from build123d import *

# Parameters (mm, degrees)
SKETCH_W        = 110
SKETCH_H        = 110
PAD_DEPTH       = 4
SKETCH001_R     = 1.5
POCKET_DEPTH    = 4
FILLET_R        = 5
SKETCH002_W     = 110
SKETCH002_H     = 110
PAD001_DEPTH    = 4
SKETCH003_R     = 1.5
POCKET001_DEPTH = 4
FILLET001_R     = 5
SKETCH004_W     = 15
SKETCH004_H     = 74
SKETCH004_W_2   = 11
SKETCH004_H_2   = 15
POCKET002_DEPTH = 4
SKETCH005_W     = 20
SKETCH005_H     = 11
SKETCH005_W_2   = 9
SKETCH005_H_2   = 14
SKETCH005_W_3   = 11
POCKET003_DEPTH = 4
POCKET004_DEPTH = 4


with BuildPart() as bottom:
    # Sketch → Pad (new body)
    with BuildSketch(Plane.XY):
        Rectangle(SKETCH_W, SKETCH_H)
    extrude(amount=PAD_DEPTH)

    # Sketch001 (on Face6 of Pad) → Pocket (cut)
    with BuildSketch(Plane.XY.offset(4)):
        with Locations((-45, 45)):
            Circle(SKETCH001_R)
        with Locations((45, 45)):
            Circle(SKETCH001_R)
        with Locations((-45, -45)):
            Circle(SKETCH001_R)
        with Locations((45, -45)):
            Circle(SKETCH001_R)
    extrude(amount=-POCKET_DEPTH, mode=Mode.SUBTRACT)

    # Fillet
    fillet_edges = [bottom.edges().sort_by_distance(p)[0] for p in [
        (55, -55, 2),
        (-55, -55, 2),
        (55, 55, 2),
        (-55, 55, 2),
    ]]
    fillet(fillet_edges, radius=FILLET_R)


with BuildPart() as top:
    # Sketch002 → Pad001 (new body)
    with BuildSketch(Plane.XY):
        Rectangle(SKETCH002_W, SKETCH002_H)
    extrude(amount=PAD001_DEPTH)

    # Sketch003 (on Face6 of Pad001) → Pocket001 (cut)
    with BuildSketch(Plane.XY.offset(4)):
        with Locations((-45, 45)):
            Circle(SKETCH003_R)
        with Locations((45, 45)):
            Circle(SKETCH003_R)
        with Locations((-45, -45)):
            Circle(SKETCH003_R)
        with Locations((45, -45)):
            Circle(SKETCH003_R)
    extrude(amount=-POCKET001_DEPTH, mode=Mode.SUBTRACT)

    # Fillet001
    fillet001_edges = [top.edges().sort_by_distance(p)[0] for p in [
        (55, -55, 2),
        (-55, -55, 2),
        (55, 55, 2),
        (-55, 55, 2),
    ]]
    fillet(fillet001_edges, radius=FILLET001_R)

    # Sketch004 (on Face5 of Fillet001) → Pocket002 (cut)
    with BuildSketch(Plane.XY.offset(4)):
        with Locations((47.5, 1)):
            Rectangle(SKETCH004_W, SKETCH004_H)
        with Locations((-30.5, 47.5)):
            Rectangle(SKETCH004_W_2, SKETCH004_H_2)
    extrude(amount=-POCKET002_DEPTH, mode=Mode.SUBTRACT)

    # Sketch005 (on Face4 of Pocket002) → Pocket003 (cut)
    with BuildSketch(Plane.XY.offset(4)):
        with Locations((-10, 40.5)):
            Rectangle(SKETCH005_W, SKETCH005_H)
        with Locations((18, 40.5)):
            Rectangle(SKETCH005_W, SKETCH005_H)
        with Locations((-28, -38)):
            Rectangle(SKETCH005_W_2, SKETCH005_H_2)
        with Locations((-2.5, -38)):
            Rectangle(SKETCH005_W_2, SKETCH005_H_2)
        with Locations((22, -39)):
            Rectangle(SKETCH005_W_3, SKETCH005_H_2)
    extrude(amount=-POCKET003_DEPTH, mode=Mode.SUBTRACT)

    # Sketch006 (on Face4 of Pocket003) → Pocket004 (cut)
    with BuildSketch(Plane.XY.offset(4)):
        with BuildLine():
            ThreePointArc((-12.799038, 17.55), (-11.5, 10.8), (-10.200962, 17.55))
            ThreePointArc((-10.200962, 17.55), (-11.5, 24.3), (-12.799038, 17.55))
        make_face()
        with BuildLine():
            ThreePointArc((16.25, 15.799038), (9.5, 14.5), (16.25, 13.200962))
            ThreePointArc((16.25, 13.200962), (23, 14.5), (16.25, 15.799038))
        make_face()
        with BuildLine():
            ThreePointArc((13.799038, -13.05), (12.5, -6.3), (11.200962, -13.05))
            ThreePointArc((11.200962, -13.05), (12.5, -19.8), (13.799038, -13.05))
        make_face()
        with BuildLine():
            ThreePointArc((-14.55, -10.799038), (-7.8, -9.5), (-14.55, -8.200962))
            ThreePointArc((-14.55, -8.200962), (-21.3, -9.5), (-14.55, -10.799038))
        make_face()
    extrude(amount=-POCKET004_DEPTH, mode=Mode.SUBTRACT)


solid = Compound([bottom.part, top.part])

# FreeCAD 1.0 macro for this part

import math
import FreeCAD as App
import Part
import Sketcher
Q = App.Units.Quantity


def edges_at(feature, points):
    """Names of the edges that pass closest to the given points."""
    edges = feature.Shape.Edges
    near = lambda p: min(range(len(edges)), key=lambda i: edges[i].distToShape(Part.Vertex(*p))[0])
    return sorted({f"Edge{near(p) + 1}" for p in points})

doc = App.newDocument("Part")
body = doc.addObject("PartDesign::Body", "Body")

# Sketch on XY plane
sketch1 = body.newObject("Sketcher::SketchObject", "Sketch")
sketch1.AttachmentSupport = (doc.getObject("XY_Plane"), [""])
sketch1.MapMode = "FlatFace"
sketch1.addGeometry(Part.LineSegment(App.Vector(-55, 55, 0), App.Vector(-55, -55, 0)), False)
sketch1.addGeometry(Part.LineSegment(App.Vector(-55, -55, 0), App.Vector(55, -55, 0)), False)
sketch1.addGeometry(Part.LineSegment(App.Vector(55, -55, 0), App.Vector(55, 55, 0)), False)
sketch1.addGeometry(Part.LineSegment(App.Vector(55, 55, 0), App.Vector(-55, 55, 0)), False)
sketch1.addConstraint(Sketcher.Constraint("Coincident", 0, 2, 1, 1))
sketch1.addConstraint(Sketcher.Constraint("Coincident", 1, 2, 2, 1))
sketch1.addConstraint(Sketcher.Constraint("Coincident", 2, 2, 3, 1))
sketch1.addConstraint(Sketcher.Constraint("Coincident", 3, 2, 0, 1))
sketch1.addConstraint(Sketcher.Constraint("Vertical", 0))
sketch1.addConstraint(Sketcher.Constraint("Horizontal", 1))
sketch1.addConstraint(Sketcher.Constraint("Vertical", 2))
sketch1.addConstraint(Sketcher.Constraint("Horizontal", 3))
sketch1.addConstraint(Sketcher.Constraint("Symmetric", 0, 2, 2, 2, -1, 1))
sketch1.addConstraint(Sketcher.Constraint("Equal", 3, 0))
sketch1.addConstraint(Sketcher.Constraint("DistanceX", 1, 1, 1, 2, Q("110 mm")))
pad1 = body.newObject("PartDesign::Pad", "Pad")
pad1.Profile = sketch1
pad1.Length = 4

# Sketch on XY plane
sketch2 = body.newObject("Sketcher::SketchObject", "Sketch001")
sketch2.AttachmentSupport = (doc.getObject("XY_Plane"), [""])
sketch2.MapMode = "FlatFace"
sketch2.AttachmentOffset = App.Placement(App.Vector(0, 0, 4), App.Rotation())
sketch2.addGeometry(Part.Circle(App.Vector(-45, 45, 0), App.Vector(0, 0, 1), 1.5), False)
sketch2.addGeometry(Part.Circle(App.Vector(45, 45, 0), App.Vector(0, 0, 1), 1.5), False)
sketch2.addGeometry(Part.Circle(App.Vector(-45, -45, 0), App.Vector(0, 0, 1), 1.5), False)
sketch2.addGeometry(Part.Circle(App.Vector(45, -45, 0), App.Vector(0, 0, 1), 1.5), False)
sketch2.addConstraint(Sketcher.Constraint("Equal", 0, 1))
sketch2.addConstraint(Sketcher.Constraint("Equal", 1, 2))
sketch2.addConstraint(Sketcher.Constraint("Equal", 2, 3))
sketch2.addConstraint(Sketcher.Constraint("Symmetric", 1, 3, 2, 3, -1, 1))
sketch2.addConstraint(Sketcher.Constraint("Symmetric", 0, 3, 3, 3, -1, 1))
sketch2.addConstraint(Sketcher.Constraint("Symmetric", 0, 3, 1, 3, -2))
sketch2.addConstraint(Sketcher.Constraint("Diameter", 0, Q("3 mm")))
sketch2.addConstraint(Sketcher.Constraint("DistanceX", 0, 3, -1, 1, Q("45 mm")))
sketch2.addConstraint(Sketcher.Constraint("DistanceY", -1, 1, 0, 3, Q("45 mm")))
pocket1 = body.newObject("PartDesign::Pocket", "Pocket")
pocket1.Profile = sketch2
pocket1.Length = 4
doc.recompute()

fillet = body.newObject("PartDesign::Fillet", "Fillet")
fillet.Base = (pocket1, edges_at(pocket1, [
    (55, -55, 2),
    (-55, -55, 2),
    (55, 55, 2),
    (-55, 55, 2),
]))
fillet.Radius = 5
body2 = doc.addObject("PartDesign::Body", "Body001")

# Sketch on XY plane
sketch3 = body2.newObject("Sketcher::SketchObject", "Sketch002")
sketch3.AttachmentSupport = (doc.getObject("XY_Plane001"), [""])
sketch3.MapMode = "FlatFace"
sketch3.addGeometry(Part.LineSegment(App.Vector(-55, 55, 0), App.Vector(-55, -55, 0)), False)
sketch3.addGeometry(Part.LineSegment(App.Vector(-55, -55, 0), App.Vector(55, -55, 0)), False)
sketch3.addGeometry(Part.LineSegment(App.Vector(55, -55, 0), App.Vector(55, 55, 0)), False)
sketch3.addGeometry(Part.LineSegment(App.Vector(55, 55, 0), App.Vector(-55, 55, 0)), False)
sketch3.addConstraint(Sketcher.Constraint("Coincident", 0, 2, 1, 1))
sketch3.addConstraint(Sketcher.Constraint("Coincident", 1, 2, 2, 1))
sketch3.addConstraint(Sketcher.Constraint("Coincident", 2, 2, 3, 1))
sketch3.addConstraint(Sketcher.Constraint("Coincident", 3, 2, 0, 1))
sketch3.addConstraint(Sketcher.Constraint("Vertical", 0))
sketch3.addConstraint(Sketcher.Constraint("Horizontal", 1))
sketch3.addConstraint(Sketcher.Constraint("Vertical", 2))
sketch3.addConstraint(Sketcher.Constraint("Horizontal", 3))
sketch3.addConstraint(Sketcher.Constraint("Symmetric", 0, 2, 2, 2, -1, 1))
sketch3.addConstraint(Sketcher.Constraint("Equal", 3, 0))
sketch3.addConstraint(Sketcher.Constraint("DistanceX", 1, 1, 1, 2, Q("110 mm")))
pad2 = body2.newObject("PartDesign::Pad", "Pad001")
pad2.Profile = sketch3
pad2.Length = 4

# Sketch on XY plane
sketch4 = body2.newObject("Sketcher::SketchObject", "Sketch003")
sketch4.AttachmentSupport = (doc.getObject("XY_Plane001"), [""])
sketch4.MapMode = "FlatFace"
sketch4.AttachmentOffset = App.Placement(App.Vector(0, 0, 4), App.Rotation())
sketch4.addGeometry(Part.Circle(App.Vector(-45, 45, 0), App.Vector(0, 0, 1), 1.5), False)
sketch4.addGeometry(Part.Circle(App.Vector(45, 45, 0), App.Vector(0, 0, 1), 1.5), False)
sketch4.addGeometry(Part.Circle(App.Vector(-45, -45, 0), App.Vector(0, 0, 1), 1.5), False)
sketch4.addGeometry(Part.Circle(App.Vector(45, -45, 0), App.Vector(0, 0, 1), 1.5), False)
sketch4.addConstraint(Sketcher.Constraint("Equal", 0, 1))
sketch4.addConstraint(Sketcher.Constraint("Equal", 1, 2))
sketch4.addConstraint(Sketcher.Constraint("Equal", 2, 3))
sketch4.addConstraint(Sketcher.Constraint("Symmetric", 1, 3, 2, 3, -1, 1))
sketch4.addConstraint(Sketcher.Constraint("Symmetric", 0, 3, 3, 3, -1, 1))
sketch4.addConstraint(Sketcher.Constraint("Symmetric", 0, 3, 1, 3, -2))
sketch4.addConstraint(Sketcher.Constraint("Diameter", 0, Q("3 mm")))
sketch4.addConstraint(Sketcher.Constraint("DistanceX", 0, 3, -1, 1, Q("45 mm")))
sketch4.addConstraint(Sketcher.Constraint("DistanceY", -1, 1, 0, 3, Q("45 mm")))
pocket2 = body2.newObject("PartDesign::Pocket", "Pocket001")
pocket2.Profile = sketch4
pocket2.Length = 4
doc.recompute()

fillet2 = body2.newObject("PartDesign::Fillet", "Fillet001")
fillet2.Base = (pocket2, edges_at(pocket2, [
    (55, -55, 2),
    (-55, -55, 2),
    (55, 55, 2),
    (-55, 55, 2),
]))
fillet2.Radius = 5

# Sketch on XY plane
sketch5 = body2.newObject("Sketcher::SketchObject", "Sketch004")
sketch5.AttachmentSupport = (doc.getObject("XY_Plane001"), [""])
sketch5.MapMode = "FlatFace"
sketch5.AttachmentOffset = App.Placement(App.Vector(0, 0, 4), App.Rotation())
sketch5.addGeometry(Part.LineSegment(App.Vector(40, 38, 0), App.Vector(40, -36, 0)), False)
sketch5.addGeometry(Part.LineSegment(App.Vector(40, -36, 0), App.Vector(55, -36, 0)), False)
sketch5.addGeometry(Part.LineSegment(App.Vector(55, -36, 0), App.Vector(55, 38, 0)), False)
sketch5.addGeometry(Part.LineSegment(App.Vector(55, 38, 0), App.Vector(40, 38, 0)), False)
sketch5.addGeometry(Part.LineSegment(App.Vector(-36, 55, 0), App.Vector(-36, 40, 0)), False)
sketch5.addGeometry(Part.LineSegment(App.Vector(-36, 40, 0), App.Vector(-25, 40, 0)), False)
sketch5.addGeometry(Part.LineSegment(App.Vector(-25, 40, 0), App.Vector(-25, 55, 0)), False)
sketch5.addGeometry(Part.LineSegment(App.Vector(-25, 55, 0), App.Vector(-36, 55, 0)), False)
sketch5.addConstraint(Sketcher.Constraint("Coincident", 0, 2, 1, 1))
sketch5.addConstraint(Sketcher.Constraint("Coincident", 1, 2, 2, 1))
sketch5.addConstraint(Sketcher.Constraint("Coincident", 2, 2, 3, 1))
sketch5.addConstraint(Sketcher.Constraint("Coincident", 3, 2, 0, 1))
sketch5.addConstraint(Sketcher.Constraint("Coincident", 4, 2, 5, 1))
sketch5.addConstraint(Sketcher.Constraint("Coincident", 5, 2, 6, 1))
sketch5.addConstraint(Sketcher.Constraint("Coincident", 6, 2, 7, 1))
sketch5.addConstraint(Sketcher.Constraint("Coincident", 7, 2, 4, 1))
sketch5.addConstraint(Sketcher.Constraint("Vertical", 0))
sketch5.addConstraint(Sketcher.Constraint("Horizontal", 1))
sketch5.addConstraint(Sketcher.Constraint("Vertical", 2))
sketch5.addConstraint(Sketcher.Constraint("Horizontal", 3))
sketch5.addConstraint(Sketcher.Constraint("Vertical", 4))
sketch5.addConstraint(Sketcher.Constraint("Horizontal", 5))
sketch5.addConstraint(Sketcher.Constraint("Vertical", 6))
sketch5.addConstraint(Sketcher.Constraint("Horizontal", 7))
sketch5.addConstraint(Sketcher.Constraint("Equal", 3, 4))
sketch5.addConstraint(Sketcher.Constraint("DistanceX", 1, 1, 1, 2, Q("15 mm")))
sketch5.addConstraint(Sketcher.Constraint("DistanceX", 5, 1, 5, 2, Q("11 mm")))
sketch5.addConstraint(Sketcher.Constraint("DistanceY", 0, 2, 0, 1, Q("74 mm")))
sketch5.addConstraint(Sketcher.Constraint("DistanceX", -1, 1, 0, 2, Q("40 mm")))
sketch5.addConstraint(Sketcher.Constraint("DistanceY", 0, 2, -1, 1, Q("36 mm")))
sketch5.addConstraint(Sketcher.Constraint("DistanceX", 4, 2, -1, 1, Q("36 mm")))
sketch5.addConstraint(Sketcher.Constraint("DistanceY", -1, 1, 4, 2, Q("40 mm")))
pocket3 = body2.newObject("PartDesign::Pocket", "Pocket002")
pocket3.Profile = sketch5
pocket3.Length = 4

# Sketch on XY plane
sketch6 = body2.newObject("Sketcher::SketchObject", "Sketch005")
sketch6.AttachmentSupport = (doc.getObject("XY_Plane001"), [""])
sketch6.MapMode = "FlatFace"
sketch6.AttachmentOffset = App.Placement(App.Vector(0, 0, 4), App.Rotation())
sketch6.addGeometry(Part.LineSegment(App.Vector(-20, 46, 0), App.Vector(-20, 35, 0)), False)
sketch6.addGeometry(Part.LineSegment(App.Vector(-20, 35, 0), App.Vector(0, 35, 0)), False)
sketch6.addGeometry(Part.LineSegment(App.Vector(0, 35, 0), App.Vector(0, 46, 0)), False)
sketch6.addGeometry(Part.LineSegment(App.Vector(0, 46, 0), App.Vector(-20, 46, 0)), False)
sketch6.addGeometry(Part.LineSegment(App.Vector(8, 46, 0), App.Vector(8, 35, 0)), False)
sketch6.addGeometry(Part.LineSegment(App.Vector(8, 35, 0), App.Vector(28, 35, 0)), False)
sketch6.addGeometry(Part.LineSegment(App.Vector(28, 35, 0), App.Vector(28, 46, 0)), False)
sketch6.addGeometry(Part.LineSegment(App.Vector(28, 46, 0), App.Vector(8, 46, 0)), False)
sketch6.addGeometry(Part.LineSegment(App.Vector(-32.5, -31, 0), App.Vector(-32.5, -45, 0)), False)
sketch6.addGeometry(Part.LineSegment(App.Vector(-32.5, -45, 0), App.Vector(-23.5, -45, 0)), False)
sketch6.addGeometry(Part.LineSegment(App.Vector(-23.5, -45, 0), App.Vector(-23.5, -31, 0)), False)
sketch6.addGeometry(Part.LineSegment(App.Vector(-23.5, -31, 0), App.Vector(-32.5, -31, 0)), False)
sketch6.addGeometry(Part.LineSegment(App.Vector(-7, -31, 0), App.Vector(-7, -45, 0)), False)
sketch6.addGeometry(Part.LineSegment(App.Vector(-7, -45, 0), App.Vector(2, -45, 0)), False)
sketch6.addGeometry(Part.LineSegment(App.Vector(2, -45, 0), App.Vector(2, -31, 0)), False)
sketch6.addGeometry(Part.LineSegment(App.Vector(2, -31, 0), App.Vector(-7, -31, 0)), False)
sketch6.addGeometry(Part.LineSegment(App.Vector(16.5, -32, 0), App.Vector(16.5, -46, 0)), False)
sketch6.addGeometry(Part.LineSegment(App.Vector(16.5, -46, 0), App.Vector(27.5, -46, 0)), False)
sketch6.addGeometry(Part.LineSegment(App.Vector(27.5, -46, 0), App.Vector(27.5, -32, 0)), False)
sketch6.addGeometry(Part.LineSegment(App.Vector(27.5, -32, 0), App.Vector(16.5, -32, 0)), False)
sketch6.addConstraint(Sketcher.Constraint("Coincident", 0, 2, 1, 1))
sketch6.addConstraint(Sketcher.Constraint("Coincident", 1, 2, 2, 1))
sketch6.addConstraint(Sketcher.Constraint("Coincident", 2, 2, 3, 1))
sketch6.addConstraint(Sketcher.Constraint("Coincident", 3, 2, 0, 1))
sketch6.addConstraint(Sketcher.Constraint("Coincident", 4, 2, 5, 1))
sketch6.addConstraint(Sketcher.Constraint("Coincident", 5, 2, 6, 1))
sketch6.addConstraint(Sketcher.Constraint("Coincident", 6, 2, 7, 1))
sketch6.addConstraint(Sketcher.Constraint("Coincident", 7, 2, 4, 1))
sketch6.addConstraint(Sketcher.Constraint("Coincident", 8, 2, 9, 1))
sketch6.addConstraint(Sketcher.Constraint("Coincident", 9, 2, 10, 1))
sketch6.addConstraint(Sketcher.Constraint("Coincident", 10, 2, 11, 1))
sketch6.addConstraint(Sketcher.Constraint("Coincident", 11, 2, 8, 1))
sketch6.addConstraint(Sketcher.Constraint("Coincident", 12, 2, 13, 1))
sketch6.addConstraint(Sketcher.Constraint("Coincident", 13, 2, 14, 1))
sketch6.addConstraint(Sketcher.Constraint("Coincident", 14, 2, 15, 1))
sketch6.addConstraint(Sketcher.Constraint("Coincident", 15, 2, 12, 1))
sketch6.addConstraint(Sketcher.Constraint("Coincident", 16, 2, 17, 1))
sketch6.addConstraint(Sketcher.Constraint("Coincident", 17, 2, 18, 1))
sketch6.addConstraint(Sketcher.Constraint("Coincident", 18, 2, 19, 1))
sketch6.addConstraint(Sketcher.Constraint("Coincident", 19, 2, 16, 1))
sketch6.addConstraint(Sketcher.Constraint("Vertical", 0))
sketch6.addConstraint(Sketcher.Constraint("Horizontal", 1))
sketch6.addConstraint(Sketcher.Constraint("Vertical", 2))
sketch6.addConstraint(Sketcher.Constraint("Horizontal", 3))
sketch6.addConstraint(Sketcher.Constraint("Vertical", 4))
sketch6.addConstraint(Sketcher.Constraint("Horizontal", 5))
sketch6.addConstraint(Sketcher.Constraint("Vertical", 6))
sketch6.addConstraint(Sketcher.Constraint("Horizontal", 7))
sketch6.addConstraint(Sketcher.Constraint("Vertical", 8))
sketch6.addConstraint(Sketcher.Constraint("Horizontal", 9))
sketch6.addConstraint(Sketcher.Constraint("Vertical", 10))
sketch6.addConstraint(Sketcher.Constraint("Horizontal", 11))
sketch6.addConstraint(Sketcher.Constraint("Vertical", 12))
sketch6.addConstraint(Sketcher.Constraint("Horizontal", 13))
sketch6.addConstraint(Sketcher.Constraint("Vertical", 14))
sketch6.addConstraint(Sketcher.Constraint("Horizontal", 15))
sketch6.addConstraint(Sketcher.Constraint("Vertical", 16))
sketch6.addConstraint(Sketcher.Constraint("Horizontal", 17))
sketch6.addConstraint(Sketcher.Constraint("Vertical", 18))
sketch6.addConstraint(Sketcher.Constraint("Horizontal", 19))
sketch6.addConstraint(Sketcher.Constraint("PointOnObject", 1, 2, -2))
sketch6.addConstraint(Sketcher.Constraint("Horizontal", 1, 2, 4, 2))
sketch6.addConstraint(Sketcher.Constraint("Horizontal", 3, 2, 6, 2))
sketch6.addConstraint(Sketcher.Constraint("Horizontal", 9, 2, 12, 2))
sketch6.addConstraint(Sketcher.Constraint("Horizontal", 11, 2, 14, 2))
sketch6.addConstraint(Sketcher.Constraint("Equal", 3, 5))
sketch6.addConstraint(Sketcher.Constraint("Equal", 11, 13))
sketch6.addConstraint(Sketcher.Constraint("Equal", 19, 0))
sketch6.addConstraint(Sketcher.Constraint("Equal", 14, 16))
sketch6.addConstraint(Sketcher.Constraint("DistanceX", 1, 1, 1, 2, Q("20 mm")))
sketch6.addConstraint(Sketcher.Constraint("DistanceX", 9, 1, 9, 2, Q("9 mm")))
sketch6.addConstraint(Sketcher.Constraint("DistanceX", 17, 1, 17, 2, Q("11 mm")))
sketch6.addConstraint(Sketcher.Constraint("DistanceY", 8, 2, 8, 1, Q("14 mm")))
sketch6.addConstraint(Sketcher.Constraint("DistanceY", -1, 1, 0, 2, Q("35 mm")))
sketch6.addConstraint(Sketcher.Constraint("DistanceX", -1, 1, 4, 2, Q("8 mm")))
sketch6.addConstraint(Sketcher.Constraint("DistanceY", 8, 2, -1, 1, Q("45 mm")))
sketch6.addConstraint(Sketcher.Constraint("DistanceX", 12, 2, -1, 1, Q("7 mm")))
sketch6.addConstraint(Sketcher.Constraint("DistanceY", 16, 2, -1, 1, Q("46 mm")))
sketch6.addConstraint(Sketcher.Constraint("DistanceX", 9, 2, 16, 2, Q("40 mm")))
sketch6.addConstraint(Sketcher.Constraint("DistanceX", 8, 2, -1, 1, Q("32.5 mm")))
pocket4 = body2.newObject("PartDesign::Pocket", "Pocket003")
pocket4.Profile = sketch6
pocket4.Length = 4

# Sketch on XY plane
sketch7 = body2.newObject("Sketcher::SketchObject", "Sketch006")
sketch7.AttachmentSupport = (doc.getObject("XY_Plane001"), [""])
sketch7.MapMode = "FlatFace"
sketch7.AttachmentOffset = App.Placement(App.Vector(0, 0, 4), App.Rotation())
sketch7.addGeometry(Part.ArcOfCircle(Part.Circle(App.Vector(-11.5, 14.3, 0), App.Vector(0, 0, 1), 3.5), math.radians(111.786788), math.radians(428.213212)), False)
sketch7.addGeometry(Part.ArcOfCircle(Part.Circle(App.Vector(-11.5, 20.8, 0), App.Vector(0, 0, 1), 3.5), math.radians(-68.213212), math.radians(248.213212)), False)
sketch7.addGeometry(Part.ArcOfCircle(Part.Circle(App.Vector(13, 14.5, 0), App.Vector(0, 0, 1), 3.5), math.radians(21.786788), math.radians(338.213212)), False)
sketch7.addGeometry(Part.ArcOfCircle(Part.Circle(App.Vector(19.5, 14.5, 0), App.Vector(0, 0, 1), 3.5), math.radians(-158.213212), math.radians(158.213212)), False)
sketch7.addGeometry(Part.ArcOfCircle(Part.Circle(App.Vector(12.5, -9.8, 0), App.Vector(0, 0, 1), 3.5), math.radians(-68.213212), math.radians(248.213212)), False)
sketch7.addGeometry(Part.ArcOfCircle(Part.Circle(App.Vector(12.5, -16.3, 0), App.Vector(0, 0, 1), 3.5), math.radians(111.786788), math.radians(428.213212)), False)
sketch7.addGeometry(Part.ArcOfCircle(Part.Circle(App.Vector(-11.3, -9.5, 0), App.Vector(0, 0, 1), 3.5), math.radians(-158.213212), math.radians(158.213212)), False)
sketch7.addGeometry(Part.ArcOfCircle(Part.Circle(App.Vector(-17.8, -9.5, 0), App.Vector(0, 0, 1), 3.5), math.radians(21.786788), math.radians(338.213212)), False)
sketch7.addConstraint(Sketcher.Constraint("Coincident", 0, 1, 1, 2))
sketch7.addConstraint(Sketcher.Constraint("Coincident", 1, 1, 0, 2))
sketch7.addConstraint(Sketcher.Constraint("Coincident", 2, 1, 3, 2))
sketch7.addConstraint(Sketcher.Constraint("Coincident", 3, 1, 2, 2))
sketch7.addConstraint(Sketcher.Constraint("Coincident", 4, 1, 5, 2))
sketch7.addConstraint(Sketcher.Constraint("Coincident", 5, 1, 4, 2))
sketch7.addConstraint(Sketcher.Constraint("Coincident", 6, 1, 7, 2))
sketch7.addConstraint(Sketcher.Constraint("Coincident", 7, 1, 6, 2))
sketch7.addConstraint(Sketcher.Constraint("Equal", 0, 1))
sketch7.addConstraint(Sketcher.Constraint("Equal", 1, 2))
sketch7.addConstraint(Sketcher.Constraint("Equal", 2, 3))
sketch7.addConstraint(Sketcher.Constraint("Equal", 3, 4))
sketch7.addConstraint(Sketcher.Constraint("Equal", 4, 5))
sketch7.addConstraint(Sketcher.Constraint("Equal", 5, 6))
sketch7.addConstraint(Sketcher.Constraint("Equal", 6, 7))
sketch7.addConstraint(Sketcher.Constraint("Horizontal", 2, 3, 3, 3))
sketch7.addConstraint(Sketcher.Constraint("Horizontal", 6, 3, 7, 3))
sketch7.addConstraint(Sketcher.Constraint("Horizontal", 0, 1, 1, 1))
sketch7.addConstraint(Sketcher.Constraint("Horizontal", 4, 1, 5, 1))
sketch7.addConstraint(Sketcher.Constraint("Radius", 0, Q("3.5 mm")))
sketch7.addConstraint(Sketcher.Constraint("DistanceX", -1, 1, 2, 3, Q("13 mm")))
sketch7.addConstraint(Sketcher.Constraint("DistanceX", 0, 3, 3, 3, Q("31 mm")))
sketch7.addConstraint(Sketcher.Constraint("DistanceX", 4, 3, 3, 3, Q("7 mm")))
sketch7.addConstraint(Sketcher.Constraint("DistanceY", 6, 3, 2, 3, Q("24 mm")))
sketch7.addConstraint(Sketcher.Constraint("DistanceX", 0, 3, -1, 1, Q("11.5 mm")))
sketch7.addConstraint(Sketcher.Constraint("DistanceY", -1, 1, 0, 3, Q("14.3 mm")))
sketch7.addConstraint(Sketcher.Constraint("DistanceY", -1, 1, 1, 3, Q("20.8 mm")))
sketch7.addConstraint(Sketcher.Constraint("DistanceY", -1, 1, 2, 3, Q("14.5 mm")))
sketch7.addConstraint(Sketcher.Constraint("DistanceY", 4, 3, -1, 1, Q("9.8 mm")))
sketch7.addConstraint(Sketcher.Constraint("DistanceY", 5, 3, -1, 1, Q("16.3 mm")))
sketch7.addConstraint(Sketcher.Constraint("DistanceX", 6, 3, -1, 1, Q("11.3 mm")))
sketch7.addConstraint(Sketcher.Constraint("DistanceX", 7, 3, -1, 1, Q("17.8 mm")))
pocket5 = body2.newObject("PartDesign::Pocket", "Pocket004")
pocket5.Profile = sketch7
pocket5.Length = 4

doc.recompute()
